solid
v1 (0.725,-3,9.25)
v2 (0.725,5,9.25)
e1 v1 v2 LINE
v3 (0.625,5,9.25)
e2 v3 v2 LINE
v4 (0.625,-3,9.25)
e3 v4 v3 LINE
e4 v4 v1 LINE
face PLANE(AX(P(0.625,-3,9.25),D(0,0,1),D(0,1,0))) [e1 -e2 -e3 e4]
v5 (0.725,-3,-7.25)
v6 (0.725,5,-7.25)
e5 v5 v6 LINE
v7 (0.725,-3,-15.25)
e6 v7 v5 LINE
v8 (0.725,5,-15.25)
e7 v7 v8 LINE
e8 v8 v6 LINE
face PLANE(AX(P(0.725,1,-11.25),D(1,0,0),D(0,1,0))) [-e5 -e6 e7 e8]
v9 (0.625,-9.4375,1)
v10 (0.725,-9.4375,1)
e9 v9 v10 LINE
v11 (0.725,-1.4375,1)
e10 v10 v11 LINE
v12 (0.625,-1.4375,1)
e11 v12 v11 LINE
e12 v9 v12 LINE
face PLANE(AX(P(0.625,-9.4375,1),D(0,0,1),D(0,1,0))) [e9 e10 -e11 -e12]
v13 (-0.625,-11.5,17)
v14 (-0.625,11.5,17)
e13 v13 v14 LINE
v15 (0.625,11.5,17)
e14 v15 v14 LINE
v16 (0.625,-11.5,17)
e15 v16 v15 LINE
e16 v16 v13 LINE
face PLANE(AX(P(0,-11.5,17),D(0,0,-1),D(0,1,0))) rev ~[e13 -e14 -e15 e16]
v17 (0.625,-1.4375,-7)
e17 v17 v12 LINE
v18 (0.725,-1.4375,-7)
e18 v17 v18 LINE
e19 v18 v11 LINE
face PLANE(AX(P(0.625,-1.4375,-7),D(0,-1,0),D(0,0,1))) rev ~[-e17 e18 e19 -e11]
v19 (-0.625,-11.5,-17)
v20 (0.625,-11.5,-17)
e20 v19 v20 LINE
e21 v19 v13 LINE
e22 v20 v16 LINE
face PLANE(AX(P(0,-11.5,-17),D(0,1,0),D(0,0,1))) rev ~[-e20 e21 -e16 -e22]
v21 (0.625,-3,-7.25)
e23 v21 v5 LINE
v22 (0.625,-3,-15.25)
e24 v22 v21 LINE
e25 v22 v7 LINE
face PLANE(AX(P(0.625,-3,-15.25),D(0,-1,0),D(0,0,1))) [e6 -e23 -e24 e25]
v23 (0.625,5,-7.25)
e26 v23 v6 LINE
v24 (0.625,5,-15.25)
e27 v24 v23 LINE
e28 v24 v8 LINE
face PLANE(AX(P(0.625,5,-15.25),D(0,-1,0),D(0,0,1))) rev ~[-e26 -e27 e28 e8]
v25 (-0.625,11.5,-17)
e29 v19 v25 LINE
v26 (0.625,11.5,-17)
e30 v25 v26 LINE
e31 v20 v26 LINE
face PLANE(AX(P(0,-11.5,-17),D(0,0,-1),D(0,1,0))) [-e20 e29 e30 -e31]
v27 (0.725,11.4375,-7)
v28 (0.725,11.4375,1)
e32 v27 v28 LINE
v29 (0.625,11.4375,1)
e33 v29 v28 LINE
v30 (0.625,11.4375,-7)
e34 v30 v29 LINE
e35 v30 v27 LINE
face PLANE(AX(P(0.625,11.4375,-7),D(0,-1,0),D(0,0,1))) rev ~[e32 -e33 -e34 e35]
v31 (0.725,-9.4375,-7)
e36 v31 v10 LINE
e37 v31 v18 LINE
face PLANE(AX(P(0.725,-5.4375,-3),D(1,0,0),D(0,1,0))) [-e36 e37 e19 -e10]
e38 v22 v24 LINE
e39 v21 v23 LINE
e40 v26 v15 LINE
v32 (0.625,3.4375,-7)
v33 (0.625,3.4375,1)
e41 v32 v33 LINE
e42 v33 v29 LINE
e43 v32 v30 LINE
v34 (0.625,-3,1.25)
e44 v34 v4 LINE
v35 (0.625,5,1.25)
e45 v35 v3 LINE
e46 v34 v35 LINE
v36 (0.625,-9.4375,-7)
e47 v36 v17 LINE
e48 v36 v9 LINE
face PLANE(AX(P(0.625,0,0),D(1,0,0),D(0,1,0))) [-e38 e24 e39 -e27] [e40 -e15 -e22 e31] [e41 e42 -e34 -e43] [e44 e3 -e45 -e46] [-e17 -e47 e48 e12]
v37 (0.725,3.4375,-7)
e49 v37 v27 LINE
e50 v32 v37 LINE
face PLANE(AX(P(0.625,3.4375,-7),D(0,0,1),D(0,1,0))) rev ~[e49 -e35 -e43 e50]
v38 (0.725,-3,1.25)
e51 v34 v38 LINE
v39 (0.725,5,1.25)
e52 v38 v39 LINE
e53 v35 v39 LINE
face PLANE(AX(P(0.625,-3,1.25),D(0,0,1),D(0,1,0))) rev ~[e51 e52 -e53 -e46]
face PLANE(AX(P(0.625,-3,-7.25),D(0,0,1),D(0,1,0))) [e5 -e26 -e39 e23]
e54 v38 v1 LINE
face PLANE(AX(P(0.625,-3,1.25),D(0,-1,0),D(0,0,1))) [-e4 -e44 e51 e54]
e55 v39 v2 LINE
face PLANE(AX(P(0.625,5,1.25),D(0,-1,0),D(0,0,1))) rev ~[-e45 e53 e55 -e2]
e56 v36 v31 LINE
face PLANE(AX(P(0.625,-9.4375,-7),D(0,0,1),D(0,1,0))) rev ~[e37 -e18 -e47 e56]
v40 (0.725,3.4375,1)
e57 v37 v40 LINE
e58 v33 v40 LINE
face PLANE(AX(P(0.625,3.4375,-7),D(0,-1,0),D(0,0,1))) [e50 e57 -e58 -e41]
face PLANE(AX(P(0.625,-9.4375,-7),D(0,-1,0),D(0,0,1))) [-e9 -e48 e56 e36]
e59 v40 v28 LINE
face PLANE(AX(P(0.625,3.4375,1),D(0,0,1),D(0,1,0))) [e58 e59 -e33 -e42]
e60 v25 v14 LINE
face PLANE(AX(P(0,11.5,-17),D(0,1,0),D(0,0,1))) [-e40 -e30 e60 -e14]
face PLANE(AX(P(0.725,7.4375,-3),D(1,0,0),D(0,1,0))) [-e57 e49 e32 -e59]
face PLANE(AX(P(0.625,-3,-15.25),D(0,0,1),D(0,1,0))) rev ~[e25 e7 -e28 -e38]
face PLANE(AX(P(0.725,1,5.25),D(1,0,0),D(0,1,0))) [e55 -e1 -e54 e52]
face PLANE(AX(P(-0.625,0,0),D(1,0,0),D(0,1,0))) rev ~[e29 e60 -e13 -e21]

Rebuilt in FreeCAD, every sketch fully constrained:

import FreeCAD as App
import Part
import Sketcher

doc = App.newDocument("Part")
params = doc.addObject("Spreadsheet::Sheet", "Params")
for row, (alias, value) in enumerate([
    ("sketch1_width", "23 mm"),
    ("sketch1_height", "34 mm"),
    ("pad1_length", "1.25 mm"),
    ("sketch2_width", "8 mm"),
    ("pad2_length", "0.1 mm"),
], start=1):
    params.set(f"A{row}", alias)
    params.set(f"B{row}", "=" + value)
    params.setAlias(f"B{row}", alias)

body = doc.addObject("PartDesign::Body", "Body")

# Sketch on YZ plane
sketch1 = body.newObject("Sketcher::SketchObject", "Sketch")
sketch1.AttachmentSupport = (doc.getObject("YZ_Plane"), [""])
sketch1.MapMode = "FlatFace"
sketch1.addGeometry([
    Part.LineSegment(App.Vector(-12, 17, 0), App.Vector(-12, -17, 0)),
    Part.LineSegment(App.Vector(-12, -17, 0), App.Vector(12, -17, 0)),
    Part.LineSegment(App.Vector(12, -17, 0), App.Vector(12, 17, 0)),
    Part.LineSegment(App.Vector(12, 17, 0), App.Vector(-12, 17, 0)),
], False)
sketch1.addConstraint([
    Sketcher.Constraint("Coincident", 0, 2, 1, 1),
    Sketcher.Constraint("Coincident", 1, 2, 2, 1),
    Sketcher.Constraint("Coincident", 2, 2, 3, 1),
    Sketcher.Constraint("Coincident", 3, 2, 0, 1),
    Sketcher.Constraint("Vertical", 0),
    Sketcher.Constraint("Horizontal", 1),
    Sketcher.Constraint("Vertical", 2),
    Sketcher.Constraint("Horizontal", 3),
    Sketcher.Constraint("Symmetric", 0, 2, 2, 2, -1, 1),
    Sketcher.Constraint("DistanceX", 1, 1, 1, 2, 23.0),
    Sketcher.Constraint("DistanceY", 0, 2, 0, 1, 34.0),
])
sketch1.setExpression("Constraints[9]", "Params.sketch1_width")
sketch1.setExpression("Constraints[10]", "Params.sketch1_height")
pad1 = body.newObject("PartDesign::Pad", "Pad")
pad1.Profile = sketch1
pad1.setExpression("Length", "Params.pad1_length")
pad1.Midplane = True

# Sketch on YZ plane
sketch2 = body.newObject("Sketcher::SketchObject", "Sketch001")
sketch2.AttachmentSupport = (doc.getObject("YZ_Plane"), [""])
sketch2.MapMode = "FlatFace"
sketch2.AttachmentOffset = App.Placement(App.Vector(0, 0, 0.625), App.Rotation())
sketch2.addGeometry([
    Part.LineSegment(App.Vector(-9, 1, 0), App.Vector(-9, -7, 0)),  # 0
    Part.LineSegment(App.Vector(-9, -7, 0), App.Vector(-1, -7, 0)),  # 1
    Part.LineSegment(App.Vector(-1, -7, 0), App.Vector(-1, 1, 0)),  # 2
    Part.LineSegment(App.Vector(-1, 1, 0), App.Vector(-9, 1, 0)),  # 3
    Part.LineSegment(App.Vector(3, 1, 0), App.Vector(3, -7, 0)),  # 4
    Part.LineSegment(App.Vector(3, -7, 0), App.Vector(11, -7, 0)),  # 5
    Part.LineSegment(App.Vector(11, -7, 0), App.Vector(11, 1, 0)),  # 6
    Part.LineSegment(App.Vector(11, 1, 0), App.Vector(3, 1, 0)),  # 7
    Part.LineSegment(App.Vector(-3, 9, 0), App.Vector(-3, 1, 0)),  # 8
    Part.LineSegment(App.Vector(-3, 1, 0), App.Vector(5, 1, 0)),  # 9
    Part.LineSegment(App.Vector(5, 1, 0), App.Vector(5, 9, 0)),  # 10
    Part.LineSegment(App.Vector(5, 9, 0), App.Vector(-3, 9, 0)),  # 11
    Part.LineSegment(App.Vector(-3, -7, 0), App.Vector(-3, -15, 0)),  # 12
    Part.LineSegment(App.Vector(-3, -15, 0), App.Vector(5, -15, 0)),  # 13
    Part.LineSegment(App.Vector(5, -15, 0), App.Vector(5, -7, 0)),  # 14
    Part.LineSegment(App.Vector(5, -7, 0), App.Vector(-3, -7, 0)),  # 15
], False)
sketch2.addConstraint([
    Sketcher.Constraint("Coincident", 0, 2, 1, 1),
    Sketcher.Constraint("Coincident", 1, 2, 2, 1),
    Sketcher.Constraint("Coincident", 2, 2, 3, 1),
    Sketcher.Constraint("Coincident", 3, 2, 0, 1),
    Sketcher.Constraint("Coincident", 4, 2, 5, 1),
    Sketcher.Constraint("Coincident", 5, 2, 6, 1),
    Sketcher.Constraint("Coincident", 6, 2, 7, 1),
    Sketcher.Constraint("Coincident", 7, 2, 4, 1),
    Sketcher.Constraint("Coincident", 8, 2, 9, 1),
    Sketcher.Constraint("Coincident", 9, 2, 10, 1),
    Sketcher.Constraint("Coincident", 10, 2, 11, 1),
    Sketcher.Constraint("Coincident", 11, 2, 8, 1),
    Sketcher.Constraint("Coincident", 12, 2, 13, 1),
    Sketcher.Constraint("Coincident", 13, 2, 14, 1),
    Sketcher.Constraint("Coincident", 14, 2, 15, 1),
    Sketcher.Constraint("Coincident", 15, 2, 12, 1),
    Sketcher.Constraint("Vertical", 0),
    Sketcher.Constraint("Horizontal", 1),
    Sketcher.Constraint("Vertical", 2),
    Sketcher.Constraint("Horizontal", 3),
    Sketcher.Constraint("Vertical", 4),
    Sketcher.Constraint("Horizontal", 5),
    Sketcher.Constraint("Vertical", 6),
    Sketcher.Constraint("Horizontal", 7),
    Sketcher.Constraint("Vertical", 8),
    Sketcher.Constraint("Horizontal", 9),
    Sketcher.Constraint("Vertical", 10),
    Sketcher.Constraint("Horizontal", 11),
    Sketcher.Constraint("Vertical", 12),
    Sketcher.Constraint("Horizontal", 13),
    Sketcher.Constraint("Vertical", 14),
    Sketcher.Constraint("Horizontal", 15),
    Sketcher.Constraint("Horizontal", 1, 2, 4, 2),
    Sketcher.Constraint("Horizontal", 3, 2, 6, 2),
    Sketcher.Constraint("Vertical", 11, 2, 12, 2),
    Sketcher.Constraint("Vertical", 10, 2, 13, 2),
    Sketcher.Constraint("Equal", 3, 5),
    Sketcher.Constraint("Equal", 7, 9),
    Sketcher.Constraint("Equal", 15, 0),
    Sketcher.Constraint("Equal", 6, 8),
    Sketcher.Constraint("Equal", 10, 12),
    Sketcher.Constraint("DistanceX", 1, 1, 1, 2, 8.0),
    Sketcher.Constraint("DistanceY", 0, 2, -1, 1, 7.0),
    Sketcher.Constraint("DistanceX", 8, 2, -1, 1, 3.0),
    Sketcher.Constraint("DistanceY", 12, 2, 8, 2, 16.5),
    Sketcher.Constraint("DistanceY", -1, 1, 8, 2, 1.25),
    Sketcher.Constraint("DistanceX", 1, 2, 4, 2, 4.875),
    Sketcher.Constraint("DistanceX", 0, 2, -1, 1, 9.4375),
])
sketch2.setExpression("Constraints[41]", "Params.sketch2_width")
pad2 = body.newObject("PartDesign::Pad", "Pad001")
pad2.Profile = sketch2
pad2.setExpression("Length", "Params.pad2_length")

doc.recompute()
